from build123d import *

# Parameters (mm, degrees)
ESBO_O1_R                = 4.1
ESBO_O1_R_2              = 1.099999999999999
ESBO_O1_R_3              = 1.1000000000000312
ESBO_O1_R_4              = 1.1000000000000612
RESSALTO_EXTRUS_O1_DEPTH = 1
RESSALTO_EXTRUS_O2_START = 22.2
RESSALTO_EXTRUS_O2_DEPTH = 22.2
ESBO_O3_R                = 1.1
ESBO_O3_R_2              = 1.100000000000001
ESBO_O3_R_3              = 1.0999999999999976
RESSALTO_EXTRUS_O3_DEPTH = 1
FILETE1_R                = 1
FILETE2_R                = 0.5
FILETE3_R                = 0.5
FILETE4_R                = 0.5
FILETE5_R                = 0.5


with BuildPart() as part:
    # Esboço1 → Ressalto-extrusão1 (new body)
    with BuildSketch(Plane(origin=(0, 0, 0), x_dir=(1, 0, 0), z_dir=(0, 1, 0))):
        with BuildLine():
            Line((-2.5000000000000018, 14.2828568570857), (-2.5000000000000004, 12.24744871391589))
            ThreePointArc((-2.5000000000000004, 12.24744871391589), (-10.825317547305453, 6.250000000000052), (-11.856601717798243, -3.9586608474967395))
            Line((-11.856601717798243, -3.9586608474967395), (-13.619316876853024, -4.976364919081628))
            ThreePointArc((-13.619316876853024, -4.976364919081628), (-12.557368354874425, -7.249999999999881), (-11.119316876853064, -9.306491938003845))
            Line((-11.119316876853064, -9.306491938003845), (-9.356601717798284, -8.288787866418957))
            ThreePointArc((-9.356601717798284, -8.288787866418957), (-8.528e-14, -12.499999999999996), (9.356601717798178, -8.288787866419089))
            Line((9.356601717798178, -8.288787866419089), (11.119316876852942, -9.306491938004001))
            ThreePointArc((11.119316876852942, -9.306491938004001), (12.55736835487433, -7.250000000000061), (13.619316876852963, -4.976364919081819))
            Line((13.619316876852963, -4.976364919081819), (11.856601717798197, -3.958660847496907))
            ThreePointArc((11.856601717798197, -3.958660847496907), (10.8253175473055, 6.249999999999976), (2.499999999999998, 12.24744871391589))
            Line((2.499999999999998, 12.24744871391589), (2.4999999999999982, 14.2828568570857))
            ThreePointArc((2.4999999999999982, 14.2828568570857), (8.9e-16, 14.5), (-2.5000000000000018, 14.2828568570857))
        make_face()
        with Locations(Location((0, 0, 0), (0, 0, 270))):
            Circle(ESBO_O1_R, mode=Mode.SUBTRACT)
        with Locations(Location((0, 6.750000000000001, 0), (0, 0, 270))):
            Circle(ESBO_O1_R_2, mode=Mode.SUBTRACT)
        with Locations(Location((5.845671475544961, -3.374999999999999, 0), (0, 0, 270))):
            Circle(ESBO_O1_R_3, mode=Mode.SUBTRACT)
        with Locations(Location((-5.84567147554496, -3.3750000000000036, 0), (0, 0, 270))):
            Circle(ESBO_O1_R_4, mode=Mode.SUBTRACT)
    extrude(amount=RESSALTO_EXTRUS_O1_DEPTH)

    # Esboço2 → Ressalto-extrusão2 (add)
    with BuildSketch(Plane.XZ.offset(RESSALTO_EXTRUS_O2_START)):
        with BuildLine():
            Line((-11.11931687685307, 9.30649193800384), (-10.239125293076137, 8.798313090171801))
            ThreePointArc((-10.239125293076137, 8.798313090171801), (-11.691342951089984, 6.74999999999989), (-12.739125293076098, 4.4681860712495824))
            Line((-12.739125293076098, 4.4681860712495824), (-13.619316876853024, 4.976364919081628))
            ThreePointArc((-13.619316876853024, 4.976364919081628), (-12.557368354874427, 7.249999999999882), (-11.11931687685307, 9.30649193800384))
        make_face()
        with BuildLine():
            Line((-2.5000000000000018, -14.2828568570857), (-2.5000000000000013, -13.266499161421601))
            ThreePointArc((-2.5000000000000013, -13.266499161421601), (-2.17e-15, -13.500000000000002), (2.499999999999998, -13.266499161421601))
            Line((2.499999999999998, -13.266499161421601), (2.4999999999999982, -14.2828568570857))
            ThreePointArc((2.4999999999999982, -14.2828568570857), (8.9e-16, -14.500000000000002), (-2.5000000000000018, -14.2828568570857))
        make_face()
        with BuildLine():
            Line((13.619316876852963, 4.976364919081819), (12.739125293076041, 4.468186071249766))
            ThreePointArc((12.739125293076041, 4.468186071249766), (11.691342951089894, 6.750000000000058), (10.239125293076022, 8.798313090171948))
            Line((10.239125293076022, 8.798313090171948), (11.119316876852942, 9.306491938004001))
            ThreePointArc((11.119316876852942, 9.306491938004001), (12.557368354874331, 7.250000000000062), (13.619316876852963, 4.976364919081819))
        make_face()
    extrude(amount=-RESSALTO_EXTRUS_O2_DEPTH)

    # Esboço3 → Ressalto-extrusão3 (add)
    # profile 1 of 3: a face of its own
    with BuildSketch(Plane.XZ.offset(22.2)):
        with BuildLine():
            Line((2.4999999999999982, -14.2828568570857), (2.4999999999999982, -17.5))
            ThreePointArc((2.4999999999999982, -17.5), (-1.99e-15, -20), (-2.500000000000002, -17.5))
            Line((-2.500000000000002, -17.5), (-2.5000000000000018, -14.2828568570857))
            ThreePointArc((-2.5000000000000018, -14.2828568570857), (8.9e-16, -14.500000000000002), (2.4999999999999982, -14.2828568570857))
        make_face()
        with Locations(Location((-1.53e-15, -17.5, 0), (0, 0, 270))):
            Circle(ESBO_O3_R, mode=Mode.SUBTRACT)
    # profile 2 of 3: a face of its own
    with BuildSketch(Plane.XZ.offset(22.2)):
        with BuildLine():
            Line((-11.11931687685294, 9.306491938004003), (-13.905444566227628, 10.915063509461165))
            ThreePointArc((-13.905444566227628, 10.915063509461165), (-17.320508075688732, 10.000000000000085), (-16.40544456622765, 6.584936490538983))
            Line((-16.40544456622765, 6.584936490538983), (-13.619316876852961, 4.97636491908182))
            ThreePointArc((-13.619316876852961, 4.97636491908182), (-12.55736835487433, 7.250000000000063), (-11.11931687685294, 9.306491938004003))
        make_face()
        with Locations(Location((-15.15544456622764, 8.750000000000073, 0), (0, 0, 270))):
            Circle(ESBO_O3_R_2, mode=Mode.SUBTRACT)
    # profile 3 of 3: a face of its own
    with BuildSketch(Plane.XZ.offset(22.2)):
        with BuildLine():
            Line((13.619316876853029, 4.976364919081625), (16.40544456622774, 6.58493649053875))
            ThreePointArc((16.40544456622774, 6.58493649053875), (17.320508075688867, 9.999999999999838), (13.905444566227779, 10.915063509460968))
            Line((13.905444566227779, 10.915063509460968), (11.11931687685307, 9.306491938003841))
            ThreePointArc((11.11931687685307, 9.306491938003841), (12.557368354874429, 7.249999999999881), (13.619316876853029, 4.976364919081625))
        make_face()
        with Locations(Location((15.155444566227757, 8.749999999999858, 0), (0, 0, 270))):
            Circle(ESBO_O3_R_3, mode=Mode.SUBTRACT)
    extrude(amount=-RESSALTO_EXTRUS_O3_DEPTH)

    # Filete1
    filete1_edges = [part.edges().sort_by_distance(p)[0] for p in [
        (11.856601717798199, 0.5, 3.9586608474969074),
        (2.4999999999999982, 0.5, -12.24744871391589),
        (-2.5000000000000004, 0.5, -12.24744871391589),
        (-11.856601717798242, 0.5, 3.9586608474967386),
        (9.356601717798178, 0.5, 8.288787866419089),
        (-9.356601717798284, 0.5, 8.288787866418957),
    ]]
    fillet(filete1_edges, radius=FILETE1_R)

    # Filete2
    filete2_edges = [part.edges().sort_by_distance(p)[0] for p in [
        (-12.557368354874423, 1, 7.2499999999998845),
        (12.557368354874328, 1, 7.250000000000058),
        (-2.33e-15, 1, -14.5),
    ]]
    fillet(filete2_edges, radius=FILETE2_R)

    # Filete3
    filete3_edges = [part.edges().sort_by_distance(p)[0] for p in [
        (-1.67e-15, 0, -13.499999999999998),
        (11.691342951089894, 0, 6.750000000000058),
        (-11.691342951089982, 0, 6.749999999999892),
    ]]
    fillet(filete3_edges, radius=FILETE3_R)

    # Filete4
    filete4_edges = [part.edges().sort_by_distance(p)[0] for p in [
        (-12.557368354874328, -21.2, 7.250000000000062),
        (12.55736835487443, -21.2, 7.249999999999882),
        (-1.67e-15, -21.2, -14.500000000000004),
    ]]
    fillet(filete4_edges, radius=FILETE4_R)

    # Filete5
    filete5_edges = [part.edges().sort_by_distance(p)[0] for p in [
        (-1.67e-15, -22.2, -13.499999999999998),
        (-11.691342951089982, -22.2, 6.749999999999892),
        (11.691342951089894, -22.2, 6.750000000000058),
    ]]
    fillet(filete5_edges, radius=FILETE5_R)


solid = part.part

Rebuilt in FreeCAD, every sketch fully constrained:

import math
import FreeCAD as App
import Part
import Sketcher
Q = App.Units.Quantity


def edges_at(feature, points):
    """Names of the edges that pass closest to the given points."""
    edges = feature.Shape.Edges
    near = lambda p: min(range(len(edges)), key=lambda i: edges[i].distToShape(Part.Vertex(*p))[0])
    return sorted({f"Edge{near(p) + 1}" for p in points})

doc = App.newDocument("Part")
body = doc.addObject("PartDesign::Body", "Body")

sketch1 = body.newObject("Sketcher::SketchObject", "Sketch")
sketch1.AttachmentSupport = (doc.getObject("XZ_Plane"), [""])
sketch1.MapMode = "FlatFace"
sketch1.addGeometry(Part.LineSegment(App.Vector(-2.5, -14.282857, 0), App.Vector(-2.5, -12.247449, 0)), False)
sketch1.addGeometry(Part.ArcOfCircle(Part.Circle(App.Vector(0, 0, 0), App.Vector(0, 0, 1), 12.5), math.radians(161.536959), math.radians(258.463041)), False)
sketch1.addGeometry(Part.LineSegment(App.Vector(-11.856602, 3.958661, 0), App.Vector(-13.619317, 4.976365, 0)), False)
sketch1.addGeometry(Part.ArcOfCircle(Part.Circle(App.Vector(0, 0, 0), App.Vector(0, 0, 1), 14.5), math.radians(140.071808), math.radians(159.928192)), False)
sketch1.addGeometry(Part.LineSegment(App.Vector(-11.119317, 9.306492, 0), App.Vector(-9.356602, 8.288788, 0)), False)
sketch1.addGeometry(Part.ArcOfCircle(Part.Circle(App.Vector(0, 0, 0), App.Vector(0, 0, 1), 12.5), math.radians(41.536959), math.radians(138.463041)), False)
sketch1.addGeometry(Part.LineSegment(App.Vector(9.356602, 8.288788, 0), App.Vector(11.119317, 9.306492, 0)), False)
sketch1.addGeometry(Part.ArcOfCircle(Part.Circle(App.Vector(0, 0, 0), App.Vector(0, 0, 1), 14.5), math.radians(20.071808), math.radians(39.928192)), False)
sketch1.addGeometry(Part.LineSegment(App.Vector(13.619317, 4.976365, 0), App.Vector(11.856602, 3.958661, 0)), False)
sketch1.addGeometry(Part.ArcOfCircle(Part.Circle(App.Vector(0, 0, 0), App.Vector(0, 0, 1), 12.5), math.radians(-78.463041), math.radians(18.463041)), False)
sketch1.addGeometry(Part.LineSegment(App.Vector(2.5, -12.247449, 0), App.Vector(2.5, -14.282857, 0)), False)
sketch1.addGeometry(Part.ArcOfCircle(Part.Circle(App.Vector(0, 0, 0), App.Vector(0, 0, 1), 14.5), math.radians(-99.928192), math.radians(-80.071808)), False)
sketch1.addGeometry(Part.Circle(App.Vector(-5.845671, 3.375, 0), App.Vector(0, 0, 1), 1.1), False)
sketch1.addGeometry(Part.Circle(App.Vector(5.845671, 3.375, 0), App.Vector(0, 0, 1), 1.1), False)
sketch1.addGeometry(Part.Circle(App.Vector(0, 0, 0), App.Vector(0, 0, 1), 4.1), False)
sketch1.addGeometry(Part.Circle(App.Vector(0, -6.75, 0), App.Vector(0, 0, 1), 1.1), False)
sketch1.addConstraint(Sketcher.Constraint("Coincident", 0, 2, 1, 2))
sketch1.addConstraint(Sketcher.Constraint("Coincident", 1, 1, 2, 1))
sketch1.addConstraint(Sketcher.Constraint("Coincident", 2, 2, 3, 2))
sketch1.addConstraint(Sketcher.Constraint("Coincident", 3, 1, 4, 1))
sketch1.addConstraint(Sketcher.Constraint("Coincident", 4, 2, 5, 2))
sketch1.addConstraint(Sketcher.Constraint("Coincident", 5, 1, 6, 1))
sketch1.addConstraint(Sketcher.Constraint("Coincident", 6, 2, 7, 2))
sketch1.addConstraint(Sketcher.Constraint("Coincident", 7, 1, 8, 1))
sketch1.addConstraint(Sketcher.Constraint("Coincident", 8, 2, 9, 2))
sketch1.addConstraint(Sketcher.Constraint("Coincident", 9, 1, 10, 1))
sketch1.addConstraint(Sketcher.Constraint("Coincident", 10, 2, 11, 2))
sketch1.addConstraint(Sketcher.Constraint("Coincident", 11, 1, 0, 1))
sketch1.addConstraint(Sketcher.Constraint("Vertical", 0))
sketch1.addConstraint(Sketcher.Constraint("Vertical", 10))
sketch1.addConstraint(Sketcher.Constraint("Coincident", 1, 3, -1, 1))
sketch1.addConstraint(Sketcher.Constraint("Coincident", 3, 3, -1, 1))
sketch1.addConstraint(Sketcher.Constraint("Coincident", 5, 3, -1, 1))
sketch1.addConstraint(Sketcher.Constraint("Coincident", 7, 3, -1, 1))
sketch1.addConstraint(Sketcher.Constraint("Coincident", 9, 3, -1, 1))
sketch1.addConstraint(Sketcher.Constraint("Coincident", 11, 3, -1, 1))
sketch1.addConstraint(Sketcher.Constraint("Coincident", 14, 3, -1, 1))
sketch1.addConstraint(Sketcher.Constraint("Equal", 1, 5))
sketch1.addConstraint(Sketcher.Constraint("Equal", 3, 7))
sketch1.addConstraint(Sketcher.Constraint("Equal", 5, 9))
sketch1.addConstraint(Sketcher.Constraint("Equal", 7, 11))
sketch1.addConstraint(Sketcher.Constraint("Equal", 12, 13))
sketch1.addConstraint(Sketcher.Constraint("Equal", 13, 15))
sketch1.addConstraint(Sketcher.Constraint("Symmetric", 12, 3, 13, 3, -2))
sketch1.addConstraint(Sketcher.Constraint("PointOnObject", 15, 3, -2))
sketch1.addConstraint(Sketcher.Constraint("Parallel", 2, 4))
sketch1.addConstraint(Sketcher.Constraint("Parallel", 6, 8))
sketch1.addConstraint(Sketcher.Constraint("Horizontal", 4, 2, 5, 1))
sketch1.addConstraint(Sketcher.Constraint("Horizontal", 3, 1, 6, 2))
sketch1.addConstraint(Sketcher.Constraint("Horizontal", 2, 2, 7, 1))
sketch1.addConstraint(Sketcher.Constraint("Horizontal", 0, 2, 9, 1))
sketch1.addConstraint(Sketcher.Constraint("Equal", 2, 4))
sketch1.addConstraint(Sketcher.Constraint("Diameter", 12, Q("2.2 mm")))
sketch1.addConstraint(Sketcher.Constraint("Diameter", 14, Q("8.2 mm")))
sketch1.addConstraint(Sketcher.Constraint("Radius", 1, Q("12.5 mm")))
sketch1.addConstraint(Sketcher.Constraint("Radius", 3, Q("14.5 mm")))
sketch1.addConstraint(Sketcher.Constraint("Angle", 2, Q("150 deg")))
sketch1.addConstraint(Sketcher.Constraint("DistanceX", 0, 2, 9, 1, Q("5 mm")))
sketch1.addConstraint(Sketcher.Constraint("DistanceX", 2, 2, 3, 1, Q("2.5 mm")))
sketch1.addConstraint(Sketcher.Constraint("DistanceY", 15, 3, -1, 1, Q("6.75 mm")))
sketch1.addConstraint(Sketcher.Constraint("DistanceY", -1, 1, 12, 3, Q("3.375 mm")))
sketch1.addConstraint(Sketcher.Constraint("DistanceX", 12, 3, -1, 1, Q("5.845671 mm")))
pad1 = body.newObject("PartDesign::Pad", "Pad")
pad1.Profile = sketch1
pad1.Length = 1
pad1.Reversed = True

sketch2 = body.newObject("Sketcher::SketchObject", "Sketch001")
sketch2.AttachmentSupport = (doc.getObject("XZ_Plane"), [""])
sketch2.MapMode = "FlatFace"
sketch2.AttachmentOffset = App.Placement(App.Vector(0, 0, 22.2), App.Rotation())
sketch2.addGeometry(Part.LineSegment(App.Vector(-10.239125, 8.798313, 0), App.Vector(-11.119317, 9.306492, 0)), False)
sketch2.addGeometry(Part.ArcOfCircle(Part.Circle(App.Vector(0, 0, 0), App.Vector(0, 0, 1), 14.5), math.radians(140.071808), math.radians(159.928192)), False)
sketch2.addGeometry(Part.LineSegment(App.Vector(-13.619317, 4.976365, 0), App.Vector(-12.739125, 4.468186, 0)), False)
sketch2.addGeometry(Part.ArcOfCircle(Part.Circle(App.Vector(0, 0, 0), App.Vector(0, 0, 1), 13.5), math.radians(139.328071), math.radians(160.671929)), False)
sketch2.addGeometry(Part.LineSegment(App.Vector(-2.5, -13.266499, 0), App.Vector(-2.5, -14.282857, 0)), False)
sketch2.addGeometry(Part.ArcOfCircle(Part.Circle(App.Vector(0, 0, 0), App.Vector(0, 0, 1), 14.5), math.radians(-99.928192), math.radians(-80.071808)), False)
sketch2.addGeometry(Part.LineSegment(App.Vector(2.5, -14.282857, 0), App.Vector(2.5, -13.266499, 0)), False)
sketch2.addGeometry(Part.ArcOfCircle(Part.Circle(App.Vector(0, 0, 0), App.Vector(0, 0, 1), 13.5), math.radians(-100.671929), math.radians(-79.328071)), False)
sketch2.addGeometry(Part.LineSegment(App.Vector(12.739125, 4.468186, 0), App.Vector(13.619317, 4.976365, 0)), False)
sketch2.addGeometry(Part.ArcOfCircle(Part.Circle(App.Vector(0, 0, 0), App.Vector(0, 0, 1), 14.5), math.radians(20.071808), math.radians(39.928192)), False)
sketch2.addGeometry(Part.LineSegment(App.Vector(11.119317, 9.306492, 0), App.Vector(10.239125, 8.798313, 0)), False)
sketch2.addGeometry(Part.ArcOfCircle(Part.Circle(App.Vector(0, 0, 0), App.Vector(0, 0, 1), 13.5), math.radians(19.328071), math.radians(40.671929)), False)
sketch2.addConstraint(Sketcher.Constraint("Coincident", 0, 2, 1, 1))
sketch2.addConstraint(Sketcher.Constraint("Coincident", 1, 2, 2, 1))
sketch2.addConstraint(Sketcher.Constraint("Coincident", 2, 2, 3, 2))
sketch2.addConstraint(Sketcher.Constraint("Coincident", 3, 1, 0, 1))
sketch2.addConstraint(Sketcher.Constraint("Coincident", 4, 2, 5, 1))
sketch2.addConstraint(Sketcher.Constraint("Coincident", 5, 2, 6, 1))
sketch2.addConstraint(Sketcher.Constraint("Coincident", 6, 2, 7, 2))
sketch2.addConstraint(Sketcher.Constraint("Coincident", 7, 1, 4, 1))
sketch2.addConstraint(Sketcher.Constraint("Coincident", 8, 2, 9, 1))
sketch2.addConstraint(Sketcher.Constraint("Coincident", 9, 2, 10, 1))
sketch2.addConstraint(Sketcher.Constraint("Coincident", 10, 2, 11, 2))
sketch2.addConstraint(Sketcher.Constraint("Coincident", 11, 1, 8, 1))
sketch2.addConstraint(Sketcher.Constraint("Vertical", 4))
sketch2.addConstraint(Sketcher.Constraint("Vertical", 6))
sketch2.addConstraint(Sketcher.Constraint("Coincident", 1, 3, -1, 1))
sketch2.addConstraint(Sketcher.Constraint("Coincident", 3, 3, -1, 1))
sketch2.addConstraint(Sketcher.Constraint("Coincident", 5, 3, -1, 1))
sketch2.addConstraint(Sketcher.Constraint("Coincident", 7, 3, -1, 1))
sketch2.addConstraint(Sketcher.Constraint("Coincident", 9, 3, -1, 1))
sketch2.addConstraint(Sketcher.Constraint("Coincident", 11, 3, -1, 1))
sketch2.addConstraint(Sketcher.Constraint("Equal", 1, 5))
sketch2.addConstraint(Sketcher.Constraint("Equal", 3, 7))
sketch2.addConstraint(Sketcher.Constraint("Equal", 5, 9))
sketch2.addConstraint(Sketcher.Constraint("Equal", 7, 11))
sketch2.addConstraint(Sketcher.Constraint("Parallel", 0, 2))
sketch2.addConstraint(Sketcher.Constraint("Parallel", 8, 10))
sketch2.addConstraint(Sketcher.Constraint("Horizontal", 4, 2, 5, 2))
sketch2.addConstraint(Sketcher.Constraint("Horizontal", 1, 2, 8, 2))
sketch2.addConstraint(Sketcher.Constraint("Horizontal", 0, 2, 9, 2))
sketch2.addConstraint(Sketcher.Constraint("Horizontal", 3, 1, 10, 2))
sketch2.addConstraint(Sketcher.Constraint("Equal", 0, 2))
sketch2.addConstraint(Sketcher.Constraint("Radius", 1, Q("14.5 mm")))
sketch2.addConstraint(Sketcher.Constraint("Radius", 3, Q("13.5 mm")))
sketch2.addConstraint(Sketcher.Constraint("Angle", 0, Q("150 deg")))
sketch2.addConstraint(Sketcher.Constraint("DistanceX", 4, 2, 5, 2, Q("5 mm")))
sketch2.addConstraint(Sketcher.Constraint("DistanceX", 1, 2, 0, 2, Q("2.5 mm")))
pad2 = body.newObject("PartDesign::Pad", "Pad001")
pad2.Profile = sketch2
pad2.Length = 22.2
pad2.Reversed = True

sketch3 = body.newObject("Sketcher::SketchObject", "Sketch002")
sketch3.AttachmentSupport = (doc.getObject("XZ_Plane"), [""])
sketch3.MapMode = "FlatFace"
sketch3.AttachmentOffset = App.Placement(App.Vector(0, 0, 22.2), App.Rotation())
sketch3.addGeometry(Part.LineSegment(App.Vector(2.5, -17.5, 0), App.Vector(2.5, -14.282857, 0)), False)
sketch3.addGeometry(Part.ArcOfCircle(Part.Circle(App.Vector(0, 0, 0), App.Vector(0, 0, 1), 14.5), math.radians(-99.928192), math.radians(-80.071808)), False)
sketch3.addGeometry(Part.LineSegment(App.Vector(-2.5, -14.282857, 0), App.Vector(-2.5, -17.5, 0)), False)
sketch3.addGeometry(Part.ArcOfCircle(Part.Circle(App.Vector(0, -17.5, 0), App.Vector(0, 0, 1), 2.5), math.radians(180), math.radians(360)), False)
sketch3.addGeometry(Part.Circle(App.Vector(0, -17.5, 0), App.Vector(0, 0, 1), 1.1), False)
sketch3.addGeometry(Part.LineSegment(App.Vector(-11.119317, 9.306492, 0), App.Vector(-13.905445, 10.915064, 0)), False)
sketch3.addGeometry(Part.ArcOfCircle(Part.Circle(App.Vector(-15.155445, 8.75, 0), App.Vector(0, 0, 1), 2.5), math.radians(60), math.radians(240)), False)
sketch3.addGeometry(Part.LineSegment(App.Vector(-16.405445, 6.584936, 0), App.Vector(-13.619317, 4.976365, 0)), False)
sketch3.addGeometry(Part.ArcOfCircle(Part.Circle(App.Vector(0, 0, 0), App.Vector(0, 0, 1), 14.5), math.radians(140.071808), math.radians(159.928192)), False)
sketch3.addGeometry(Part.Circle(App.Vector(-15.155445, 8.75, 0), App.Vector(0, 0, 1), 1.1), False)
sketch3.addGeometry(Part.LineSegment(App.Vector(13.619317, 4.976365, 0), App.Vector(16.405445, 6.584936, 0)), False)
sketch3.addGeometry(Part.ArcOfCircle(Part.Circle(App.Vector(15.155445, 8.75, 0), App.Vector(0, 0, 1), 2.5), math.radians(-60), math.radians(120)), False)
sketch3.addGeometry(Part.LineSegment(App.Vector(13.905445, 10.915064, 0), App.Vector(11.119317, 9.306492, 0)), False)
sketch3.addGeometry(Part.ArcOfCircle(Part.Circle(App.Vector(0, 0, 0), App.Vector(0, 0, 1), 14.5), math.radians(20.071808), math.radians(39.928192)), False)
sketch3.addGeometry(Part.Circle(App.Vector(15.155445, 8.75, 0), App.Vector(0, 0, 1), 1.1), False)
sketch3.addConstraint(Sketcher.Constraint("Coincident", 0, 2, 1, 2))
sketch3.addConstraint(Sketcher.Constraint("Coincident", 1, 1, 2, 1))
sketch3.addConstraint(Sketcher.Constraint("Tangent", 2, 2, 3, 1))
sketch3.addConstraint(Sketcher.Constraint("Tangent", 3, 2, 0, 1))
sketch3.addConstraint(Sketcher.Constraint("Tangent", 5, 2, 6, 1))
sketch3.addConstraint(Sketcher.Constraint("Tangent", 6, 2, 7, 1))
sketch3.addConstraint(Sketcher.Constraint("Coincident", 7, 2, 8, 2))
sketch3.addConstraint(Sketcher.Constraint("Coincident", 8, 1, 5, 1))
sketch3.addConstraint(Sketcher.Constraint("Tangent", 10, 2, 11, 1))
sketch3.addConstraint(Sketcher.Constraint("Tangent", 11, 2, 12, 1))
sketch3.addConstraint(Sketcher.Constraint("Coincident", 12, 2, 13, 2))
sketch3.addConstraint(Sketcher.Constraint("Coincident", 13, 1, 10, 1))
sketch3.addConstraint(Sketcher.Constraint("Vertical", 0))
sketch3.addConstraint(Sketcher.Constraint("Vertical", 2))
sketch3.addConstraint(Sketcher.Constraint("Coincident", 1, 3, -1, 1))
sketch3.addConstraint(Sketcher.Constraint("Coincident", 8, 3, -1, 1))
sketch3.addConstraint(Sketcher.Constraint("Coincident", 13, 3, -1, 1))
sketch3.addConstraint(Sketcher.Constraint("Coincident", 4, 3, 3, 3))
sketch3.addConstraint(Sketcher.Constraint("Coincident", 9, 3, 6, 3))
sketch3.addConstraint(Sketcher.Constraint("Coincident", 14, 3, 11, 3))
sketch3.addConstraint(Sketcher.Constraint("Equal", 3, 6))
sketch3.addConstraint(Sketcher.Constraint("Equal", 1, 8))
sketch3.addConstraint(Sketcher.Constraint("Equal", 4, 9))
sketch3.addConstraint(Sketcher.Constraint("Equal", 6, 11))
sketch3.addConstraint(Sketcher.Constraint("Equal", 8, 13))
sketch3.addConstraint(Sketcher.Constraint("Equal", 9, 14))
sketch3.addConstraint(Sketcher.Constraint("Symmetric", 6, 3, 11, 3, -2))
sketch3.addConstraint(Sketcher.Constraint("PointOnObject", 3, 3, -2))
sketch3.addConstraint(Sketcher.Constraint("Parallel", 5, 7))
sketch3.addConstraint(Sketcher.Constraint("Parallel", 10, 12))
sketch3.addConstraint(Sketcher.Constraint("Horizontal", 6, 2, 10, 2))
sketch3.addConstraint(Sketcher.Constraint("Equal", 5, 7))
sketch3.addConstraint(Sketcher.Constraint("Diameter", 4, Q("2.2 mm")))
sketch3.addConstraint(Sketcher.Constraint("Radius", 1, Q("14.5 mm")))
sketch3.addConstraint(Sketcher.Constraint("Radius", 3, Q("2.5 mm")))
sketch3.addConstraint(Sketcher.Constraint("Angle", 5, Q("150 deg")))
sketch3.addConstraint(Sketcher.Constraint("DistanceY", 3, 3, -1, 1, Q("17.5 mm")))
sketch3.addConstraint(Sketcher.Constraint("DistanceY", -1, 1, 6, 3, Q("8.75 mm")))
pad3 = body.newObject("PartDesign::Pad", "Pad002")
pad3.Profile = sketch3
pad3.Length = 1
pad3.Reversed = True
doc.recompute()

fillet = body.newObject("PartDesign::Fillet", "Fillet")
fillet.Base = (pad3, edges_at(pad3, [
    (11.857, 0.5, 3.959),
    (2.5, 0.5, -12.247),
    (-2.5, 0.5, -12.247),
    (-11.857, 0.5, 3.959),
    (9.357, 0.5, 8.289),
    (-9.357, 0.5, 8.289),
]))
fillet.Radius = 1
doc.recompute()

fillet2 = body.newObject("PartDesign::Fillet", "Fillet001")
fillet2.Base = (fillet, edges_at(fillet, [(-12.557, 1, 7.25), (12.557, 1, 7.25), (0, 1, -14.5)]))
fillet2.Radius = 0.5
doc.recompute()

fillet3 = body.newObject("PartDesign::Fillet", "Fillet002")
fillet3.Base = (fillet2, edges_at(fillet2, [(0, 0, -13.5), (11.691, 0, 6.75), (-11.691, 0, 6.75)]))
fillet3.Radius = 0.5
doc.recompute()

fillet4 = body.newObject("PartDesign::Fillet", "Fillet003")
fillet4.Base = (fillet3, edges_at(fillet3, [(-12.557, -21.2, 7.25), (12.557, -21.2, 7.25), (0, -21.2, -14.5)]))
fillet4.Radius = 0.5
doc.recompute()

fillet5 = body.newObject("PartDesign::Fillet", "Fillet004")
fillet5.Base = (fillet4, edges_at(fillet4, [(0, -22.2, -13.5), (-11.691, -22.2, 6.75), (11.691, -22.2, 6.75)]))
fillet5.Radius = 0.5

doc.recompute()
